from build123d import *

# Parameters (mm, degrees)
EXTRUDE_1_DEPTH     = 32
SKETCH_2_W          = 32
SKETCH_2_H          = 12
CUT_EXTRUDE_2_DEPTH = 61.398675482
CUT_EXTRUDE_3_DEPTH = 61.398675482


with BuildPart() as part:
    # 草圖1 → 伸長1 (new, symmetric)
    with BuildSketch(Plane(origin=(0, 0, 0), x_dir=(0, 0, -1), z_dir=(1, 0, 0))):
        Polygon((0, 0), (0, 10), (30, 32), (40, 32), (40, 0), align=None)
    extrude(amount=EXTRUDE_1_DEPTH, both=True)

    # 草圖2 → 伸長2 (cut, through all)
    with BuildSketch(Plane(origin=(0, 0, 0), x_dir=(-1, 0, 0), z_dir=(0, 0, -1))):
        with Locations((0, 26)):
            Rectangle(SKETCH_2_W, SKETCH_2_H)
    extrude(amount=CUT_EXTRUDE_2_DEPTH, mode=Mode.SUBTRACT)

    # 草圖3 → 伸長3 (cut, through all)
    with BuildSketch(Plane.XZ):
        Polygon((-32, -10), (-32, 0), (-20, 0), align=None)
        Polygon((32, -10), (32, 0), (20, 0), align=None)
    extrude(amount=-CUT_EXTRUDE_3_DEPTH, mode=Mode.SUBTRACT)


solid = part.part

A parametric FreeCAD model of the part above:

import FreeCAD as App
import Part
import Sketcher
from FreeCAD import Vector
Q = App.Units.Quantity


def add_polygon(sketch, points):
    """Adds a closed chain of lines whose ends are joined by coincident constraints."""
    first, n = sketch.GeometryCount, len(points)
    for a, b in zip(points, points[1:] + points[:1]):
        sketch.addGeometry(Part.LineSegment(App.Vector(*a, 0), App.Vector(*b, 0)), False)
    for i in range(n):
        sketch.addConstraint(Sketcher.Constraint("Coincident", first + i, 2, first + (i + 1) % n, 1))

doc = App.newDocument("Part")
body = doc.addObject("PartDesign::Body", "Body")

# Sketch on YZ plane
sketch1 = body.newObject("Sketcher::SketchObject", "Sketch")
sketch1.AttachmentSupport = (doc.getObject("YZ_Plane"), [""])
sketch1.MapMode = "FlatFace"
add_polygon(sketch1, [(10, 0), (0, 0), (0, -40), (32, -40), (32, -30)])  # lines 0-4
sketch1.addConstraint(Sketcher.Constraint("Horizontal", 0))
sketch1.addConstraint(Sketcher.Constraint("Vertical", 1))
sketch1.addConstraint(Sketcher.Constraint("Horizontal", 2))
sketch1.addConstraint(Sketcher.Constraint("Vertical", 3))
sketch1.addConstraint(Sketcher.Constraint("Coincident", 0, 2, -1, 1))
sketch1.addConstraint(Sketcher.Constraint("Equal", 0, 3))
sketch1.addConstraint(Sketcher.Constraint("DistanceX", 0, 2, 0, 1, Q("10 mm")))
sketch1.addConstraint(Sketcher.Constraint("DistanceX", 2, 1, 2, 2, Q("32 mm")))
sketch1.addConstraint(Sketcher.Constraint("DistanceY", 1, 2, 1, 1, Q("40 mm")))
pad1 = body.newObject("PartDesign::Pad", "Pad")
pad1.Profile = sketch1
pad1.Length = 64
pad1.Midplane = True

# Sketch on XY plane
sketch2 = body.newObject("Sketcher::SketchObject", "Sketch001")
sketch2.AttachmentSupport = (doc.getObject("XY_Plane"), [""])
sketch2.MapMode = "FlatFace"
add_polygon(sketch2, [(16, 32), (16, 20), (-16, 20), (-16, 32)])  # lines 0-3
sketch2.addConstraint(Sketcher.Constraint("Vertical", 0))
sketch2.addConstraint(Sketcher.Constraint("Horizontal", 1))
sketch2.addConstraint(Sketcher.Constraint("Vertical", 2))
sketch2.addConstraint(Sketcher.Constraint("Horizontal", 3))
sketch2.addConstraint(Sketcher.Constraint("DistanceX", 1, 2, 1, 1, Q("32 mm")))
sketch2.addConstraint(Sketcher.Constraint("DistanceY", 0, 2, 0, 1, Q("12 mm")))
sketch2.addConstraint(Sketcher.Constraint("DistanceX", -1, 1, 0, 2, Q("16 mm")))
sketch2.addConstraint(Sketcher.Constraint("DistanceY", -1, 1, 0, 2, Q("20 mm")))
pocket1 = body.newObject("PartDesign::Pocket", "Pocket")
pocket1.Profile = sketch2
pocket1.Type = "ThroughAll"

# Sketch on XZ plane
sketch3 = body.newObject("Sketcher::SketchObject", "Sketch002")
sketch3.AttachmentSupport = (doc.getObject("XZ_Plane"), [""])
sketch3.MapMode = "FlatFace"
add_polygon(sketch3, [(-32, 0), (-32, -10), (-20, 0)])  # lines 0-2
add_polygon(sketch3, [(32, -10), (32, 0), (20, 0)])  # lines 3-5
sketch3.addConstraint(Sketcher.Constraint("Vertical", 0))
sketch3.addConstraint(Sketcher.Constraint("Horizontal", 2))
sketch3.addConstraint(Sketcher.Constraint("Vertical", 3))
sketch3.addConstraint(Sketcher.Constraint("Horizontal", 4))
sketch3.addConstraint(Sketcher.Constraint("Symmetric", 2, 2, 3, 2, -1, 1))
sketch3.addConstraint(Sketcher.Constraint("Symmetric", 1, 2, 4, 2, -2))
sketch3.addConstraint(Sketcher.Constraint("Horizontal", 0, 2, 5, 2))
sketch3.addConstraint(Sketcher.Constraint("DistanceX", 2, 2, 2, 1, Q("12 mm")))
sketch3.addConstraint(Sketcher.Constraint("DistanceY", 0, 2, 0, 1, Q("10 mm")))
sketch3.addConstraint(Sketcher.Constraint("DistanceX", 0, 2, -1, 1, Q("32 mm")))
pocket2 = body.newObject("PartDesign::Pocket", "Pocket001")
pocket2.Profile = sketch3
pocket2.Type = "ThroughAll"

doc.recompute()
